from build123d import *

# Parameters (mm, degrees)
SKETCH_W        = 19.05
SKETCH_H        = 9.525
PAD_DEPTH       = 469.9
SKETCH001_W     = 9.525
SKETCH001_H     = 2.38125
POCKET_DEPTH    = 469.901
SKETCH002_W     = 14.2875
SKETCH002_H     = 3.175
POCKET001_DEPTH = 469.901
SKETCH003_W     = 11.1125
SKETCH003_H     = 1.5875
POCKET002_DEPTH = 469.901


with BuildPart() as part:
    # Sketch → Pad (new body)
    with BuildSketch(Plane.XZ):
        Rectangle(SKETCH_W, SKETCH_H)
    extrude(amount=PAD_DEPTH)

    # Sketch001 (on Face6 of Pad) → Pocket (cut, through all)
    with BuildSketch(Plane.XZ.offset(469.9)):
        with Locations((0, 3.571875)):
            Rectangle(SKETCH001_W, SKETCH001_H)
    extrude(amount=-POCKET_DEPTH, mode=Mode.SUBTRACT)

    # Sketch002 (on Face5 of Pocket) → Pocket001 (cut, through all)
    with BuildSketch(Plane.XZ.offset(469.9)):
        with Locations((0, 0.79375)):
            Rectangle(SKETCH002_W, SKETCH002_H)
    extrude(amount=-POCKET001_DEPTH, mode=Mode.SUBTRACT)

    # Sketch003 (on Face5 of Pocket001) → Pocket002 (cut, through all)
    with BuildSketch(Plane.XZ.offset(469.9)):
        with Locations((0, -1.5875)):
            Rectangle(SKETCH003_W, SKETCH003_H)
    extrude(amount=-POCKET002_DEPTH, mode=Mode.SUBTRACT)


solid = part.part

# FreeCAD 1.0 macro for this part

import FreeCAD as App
import Part
import Sketcher

V = App.Vector
Q = App.Units.Quantity


def add_polygon(sketch, points):
    """Adds a closed chain of lines whose ends are joined by coincident constraints."""
    first, n = sketch.GeometryCount, len(points)
    for a, b in zip(points, points[1:] + points[:1]):
        sketch.addGeometry(Part.LineSegment(App.Vector(*a, 0), App.Vector(*b, 0)), False)
    for i in range(n):
        sketch.addConstraint(Sketcher.Constraint("Coincident", first + i, 2, first + (i + 1) % n, 1))

doc = App.newDocument("Part")
body = doc.addObject("PartDesign::Body", "Body")

# Sketch on XZ plane
sketch1 = body.newObject("Sketcher::SketchObject", "Sketch")
sketch1.AttachmentSupport = (doc.getObject("XZ_Plane"), [""])
sketch1.MapMode = "FlatFace"
add_polygon(sketch1, [(-9.525, 4.7625), (-9.525, -4.7625), (9.525, -4.7625), (9.525, 4.7625)])  # lines 0-3
sketch1.addConstraint(Sketcher.Constraint("Vertical", 0))
sketch1.addConstraint(Sketcher.Constraint("Horizontal", 1))
sketch1.addConstraint(Sketcher.Constraint("Vertical", 2))
sketch1.addConstraint(Sketcher.Constraint("Horizontal", 3))
sketch1.addConstraint(Sketcher.Constraint("Symmetric", 0, 2, 2, 2, -1, 1))
sketch1.addConstraint(Sketcher.Constraint("DistanceX", 1, 1, 1, 2, Q("0.75 in")))
sketch1.addConstraint(Sketcher.Constraint("DistanceY", 0, 2, 0, 1, Q("0.375 in")))
pad1 = body.newObject("PartDesign::Pad", "Pad")
pad1.Profile = sketch1
pad1.Length = Q("18.5 in")

# Sketch on XZ plane
sketch2 = body.newObject("Sketcher::SketchObject", "Sketch001")
sketch2.AttachmentSupport = (doc.getObject("XZ_Plane"), [""])
sketch2.MapMode = "FlatFace"
sketch2.AttachmentOffset = App.Placement(V(0, 0, 18.5 * 25.4), App.Rotation())
add_polygon(sketch2, [(-4.7625, 4.7625), (-4.7625, 2.38125), (4.7625, 2.38125), (4.7625, 4.7625)])  # lines 0-3
sketch2.addConstraint(Sketcher.Constraint("Vertical", 0))
sketch2.addConstraint(Sketcher.Constraint("Horizontal", 1))
sketch2.addConstraint(Sketcher.Constraint("Vertical", 2))
sketch2.addConstraint(Sketcher.Constraint("Horizontal", 3))
sketch2.addConstraint(Sketcher.Constraint("DistanceX", 1, 1, 1, 2, Q("0.375 in")))
sketch2.addConstraint(Sketcher.Constraint("DistanceY", 0, 2, 0, 1, Q("0.09375 in")))
sketch2.addConstraint(Sketcher.Constraint("DistanceX", 0, 2, -1, 1, Q("0.1875 in")))
sketch2.addConstraint(Sketcher.Constraint("DistanceY", -1, 1, 0, 2, Q("0.09375 in")))
pocket1 = body.newObject("PartDesign::Pocket", "Pocket")
pocket1.Profile = sketch2
pocket1.Type = "ThroughAll"

# Sketch on XZ plane
sketch3 = body.newObject("Sketcher::SketchObject", "Sketch002")
sketch3.AttachmentSupport = (doc.getObject("XZ_Plane"), [""])
sketch3.MapMode = "FlatFace"
sketch3.AttachmentOffset = App.Placement(V(0, 0, 18.5 * 25.4), App.Rotation())
add_polygon(sketch3, [(-7.14375, 2.38125), (-7.14375, -0.79375), (7.14375, -0.79375), (7.14375, 2.38125)])  # lines 0-3
sketch3.addConstraint(Sketcher.Constraint("Vertical", 0))
sketch3.addConstraint(Sketcher.Constraint("Horizontal", 1))
sketch3.addConstraint(Sketcher.Constraint("Vertical", 2))
sketch3.addConstraint(Sketcher.Constraint("Horizontal", 3))
sketch3.addConstraint(Sketcher.Constraint("DistanceX", 1, 1, 1, 2, Q("0.5625 in")))
sketch3.addConstraint(Sketcher.Constraint("DistanceY", 0, 2, 0, 1, Q("0.125 in")))
sketch3.addConstraint(Sketcher.Constraint("DistanceX", 0, 2, -1, 1, Q("0.28125 in")))
sketch3.addConstraint(Sketcher.Constraint("DistanceY", 0, 2, -1, 1, Q("0.03125 in")))
pocket2 = body.newObject("PartDesign::Pocket", "Pocket001")
pocket2.Profile = sketch3
pocket2.Type = "ThroughAll"

# Sketch on XZ plane
sketch4 = body.newObject("Sketcher::SketchObject", "Sketch003")
sketch4.AttachmentSupport = (doc.getObject("XZ_Plane"), [""])
sketch4.MapMode = "FlatFace"
sketch4.AttachmentOffset = App.Placement(V(0, 0, 18.5 * 25.4), App.Rotation())
add_polygon(sketch4, [(-5.55625, -0.79375), (-5.55625, -2.38125), (5.55625, -2.38125), (5.55625, -0.79375)])  # lines 0-3
sketch4.addConstraint(Sketcher.Constraint("Vertical", 0))
sketch4.addConstraint(Sketcher.Constraint("Horizontal", 1))
sketch4.addConstraint(Sketcher.Constraint("Vertical", 2))
sketch4.addConstraint(Sketcher.Constraint("Horizontal", 3))
sketch4.addConstraint(Sketcher.Constraint("DistanceX", 1, 1, 1, 2, Q("0.4375 in")))
sketch4.addConstraint(Sketcher.Constraint("DistanceY", 0, 2, 0, 1, Q("0.0625 in")))
sketch4.addConstraint(Sketcher.Constraint("DistanceX", 0, 2, -1, 1, Q("0.21875 in")))
sketch4.addConstraint(Sketcher.Constraint("DistanceY", 0, 2, -1, 1, Q("0.09375 in")))
pocket3 = body.newObject("PartDesign::Pocket", "Pocket002")
pocket3.Profile = sketch4
pocket3.Type = "ThroughAll"

doc.recompute()
